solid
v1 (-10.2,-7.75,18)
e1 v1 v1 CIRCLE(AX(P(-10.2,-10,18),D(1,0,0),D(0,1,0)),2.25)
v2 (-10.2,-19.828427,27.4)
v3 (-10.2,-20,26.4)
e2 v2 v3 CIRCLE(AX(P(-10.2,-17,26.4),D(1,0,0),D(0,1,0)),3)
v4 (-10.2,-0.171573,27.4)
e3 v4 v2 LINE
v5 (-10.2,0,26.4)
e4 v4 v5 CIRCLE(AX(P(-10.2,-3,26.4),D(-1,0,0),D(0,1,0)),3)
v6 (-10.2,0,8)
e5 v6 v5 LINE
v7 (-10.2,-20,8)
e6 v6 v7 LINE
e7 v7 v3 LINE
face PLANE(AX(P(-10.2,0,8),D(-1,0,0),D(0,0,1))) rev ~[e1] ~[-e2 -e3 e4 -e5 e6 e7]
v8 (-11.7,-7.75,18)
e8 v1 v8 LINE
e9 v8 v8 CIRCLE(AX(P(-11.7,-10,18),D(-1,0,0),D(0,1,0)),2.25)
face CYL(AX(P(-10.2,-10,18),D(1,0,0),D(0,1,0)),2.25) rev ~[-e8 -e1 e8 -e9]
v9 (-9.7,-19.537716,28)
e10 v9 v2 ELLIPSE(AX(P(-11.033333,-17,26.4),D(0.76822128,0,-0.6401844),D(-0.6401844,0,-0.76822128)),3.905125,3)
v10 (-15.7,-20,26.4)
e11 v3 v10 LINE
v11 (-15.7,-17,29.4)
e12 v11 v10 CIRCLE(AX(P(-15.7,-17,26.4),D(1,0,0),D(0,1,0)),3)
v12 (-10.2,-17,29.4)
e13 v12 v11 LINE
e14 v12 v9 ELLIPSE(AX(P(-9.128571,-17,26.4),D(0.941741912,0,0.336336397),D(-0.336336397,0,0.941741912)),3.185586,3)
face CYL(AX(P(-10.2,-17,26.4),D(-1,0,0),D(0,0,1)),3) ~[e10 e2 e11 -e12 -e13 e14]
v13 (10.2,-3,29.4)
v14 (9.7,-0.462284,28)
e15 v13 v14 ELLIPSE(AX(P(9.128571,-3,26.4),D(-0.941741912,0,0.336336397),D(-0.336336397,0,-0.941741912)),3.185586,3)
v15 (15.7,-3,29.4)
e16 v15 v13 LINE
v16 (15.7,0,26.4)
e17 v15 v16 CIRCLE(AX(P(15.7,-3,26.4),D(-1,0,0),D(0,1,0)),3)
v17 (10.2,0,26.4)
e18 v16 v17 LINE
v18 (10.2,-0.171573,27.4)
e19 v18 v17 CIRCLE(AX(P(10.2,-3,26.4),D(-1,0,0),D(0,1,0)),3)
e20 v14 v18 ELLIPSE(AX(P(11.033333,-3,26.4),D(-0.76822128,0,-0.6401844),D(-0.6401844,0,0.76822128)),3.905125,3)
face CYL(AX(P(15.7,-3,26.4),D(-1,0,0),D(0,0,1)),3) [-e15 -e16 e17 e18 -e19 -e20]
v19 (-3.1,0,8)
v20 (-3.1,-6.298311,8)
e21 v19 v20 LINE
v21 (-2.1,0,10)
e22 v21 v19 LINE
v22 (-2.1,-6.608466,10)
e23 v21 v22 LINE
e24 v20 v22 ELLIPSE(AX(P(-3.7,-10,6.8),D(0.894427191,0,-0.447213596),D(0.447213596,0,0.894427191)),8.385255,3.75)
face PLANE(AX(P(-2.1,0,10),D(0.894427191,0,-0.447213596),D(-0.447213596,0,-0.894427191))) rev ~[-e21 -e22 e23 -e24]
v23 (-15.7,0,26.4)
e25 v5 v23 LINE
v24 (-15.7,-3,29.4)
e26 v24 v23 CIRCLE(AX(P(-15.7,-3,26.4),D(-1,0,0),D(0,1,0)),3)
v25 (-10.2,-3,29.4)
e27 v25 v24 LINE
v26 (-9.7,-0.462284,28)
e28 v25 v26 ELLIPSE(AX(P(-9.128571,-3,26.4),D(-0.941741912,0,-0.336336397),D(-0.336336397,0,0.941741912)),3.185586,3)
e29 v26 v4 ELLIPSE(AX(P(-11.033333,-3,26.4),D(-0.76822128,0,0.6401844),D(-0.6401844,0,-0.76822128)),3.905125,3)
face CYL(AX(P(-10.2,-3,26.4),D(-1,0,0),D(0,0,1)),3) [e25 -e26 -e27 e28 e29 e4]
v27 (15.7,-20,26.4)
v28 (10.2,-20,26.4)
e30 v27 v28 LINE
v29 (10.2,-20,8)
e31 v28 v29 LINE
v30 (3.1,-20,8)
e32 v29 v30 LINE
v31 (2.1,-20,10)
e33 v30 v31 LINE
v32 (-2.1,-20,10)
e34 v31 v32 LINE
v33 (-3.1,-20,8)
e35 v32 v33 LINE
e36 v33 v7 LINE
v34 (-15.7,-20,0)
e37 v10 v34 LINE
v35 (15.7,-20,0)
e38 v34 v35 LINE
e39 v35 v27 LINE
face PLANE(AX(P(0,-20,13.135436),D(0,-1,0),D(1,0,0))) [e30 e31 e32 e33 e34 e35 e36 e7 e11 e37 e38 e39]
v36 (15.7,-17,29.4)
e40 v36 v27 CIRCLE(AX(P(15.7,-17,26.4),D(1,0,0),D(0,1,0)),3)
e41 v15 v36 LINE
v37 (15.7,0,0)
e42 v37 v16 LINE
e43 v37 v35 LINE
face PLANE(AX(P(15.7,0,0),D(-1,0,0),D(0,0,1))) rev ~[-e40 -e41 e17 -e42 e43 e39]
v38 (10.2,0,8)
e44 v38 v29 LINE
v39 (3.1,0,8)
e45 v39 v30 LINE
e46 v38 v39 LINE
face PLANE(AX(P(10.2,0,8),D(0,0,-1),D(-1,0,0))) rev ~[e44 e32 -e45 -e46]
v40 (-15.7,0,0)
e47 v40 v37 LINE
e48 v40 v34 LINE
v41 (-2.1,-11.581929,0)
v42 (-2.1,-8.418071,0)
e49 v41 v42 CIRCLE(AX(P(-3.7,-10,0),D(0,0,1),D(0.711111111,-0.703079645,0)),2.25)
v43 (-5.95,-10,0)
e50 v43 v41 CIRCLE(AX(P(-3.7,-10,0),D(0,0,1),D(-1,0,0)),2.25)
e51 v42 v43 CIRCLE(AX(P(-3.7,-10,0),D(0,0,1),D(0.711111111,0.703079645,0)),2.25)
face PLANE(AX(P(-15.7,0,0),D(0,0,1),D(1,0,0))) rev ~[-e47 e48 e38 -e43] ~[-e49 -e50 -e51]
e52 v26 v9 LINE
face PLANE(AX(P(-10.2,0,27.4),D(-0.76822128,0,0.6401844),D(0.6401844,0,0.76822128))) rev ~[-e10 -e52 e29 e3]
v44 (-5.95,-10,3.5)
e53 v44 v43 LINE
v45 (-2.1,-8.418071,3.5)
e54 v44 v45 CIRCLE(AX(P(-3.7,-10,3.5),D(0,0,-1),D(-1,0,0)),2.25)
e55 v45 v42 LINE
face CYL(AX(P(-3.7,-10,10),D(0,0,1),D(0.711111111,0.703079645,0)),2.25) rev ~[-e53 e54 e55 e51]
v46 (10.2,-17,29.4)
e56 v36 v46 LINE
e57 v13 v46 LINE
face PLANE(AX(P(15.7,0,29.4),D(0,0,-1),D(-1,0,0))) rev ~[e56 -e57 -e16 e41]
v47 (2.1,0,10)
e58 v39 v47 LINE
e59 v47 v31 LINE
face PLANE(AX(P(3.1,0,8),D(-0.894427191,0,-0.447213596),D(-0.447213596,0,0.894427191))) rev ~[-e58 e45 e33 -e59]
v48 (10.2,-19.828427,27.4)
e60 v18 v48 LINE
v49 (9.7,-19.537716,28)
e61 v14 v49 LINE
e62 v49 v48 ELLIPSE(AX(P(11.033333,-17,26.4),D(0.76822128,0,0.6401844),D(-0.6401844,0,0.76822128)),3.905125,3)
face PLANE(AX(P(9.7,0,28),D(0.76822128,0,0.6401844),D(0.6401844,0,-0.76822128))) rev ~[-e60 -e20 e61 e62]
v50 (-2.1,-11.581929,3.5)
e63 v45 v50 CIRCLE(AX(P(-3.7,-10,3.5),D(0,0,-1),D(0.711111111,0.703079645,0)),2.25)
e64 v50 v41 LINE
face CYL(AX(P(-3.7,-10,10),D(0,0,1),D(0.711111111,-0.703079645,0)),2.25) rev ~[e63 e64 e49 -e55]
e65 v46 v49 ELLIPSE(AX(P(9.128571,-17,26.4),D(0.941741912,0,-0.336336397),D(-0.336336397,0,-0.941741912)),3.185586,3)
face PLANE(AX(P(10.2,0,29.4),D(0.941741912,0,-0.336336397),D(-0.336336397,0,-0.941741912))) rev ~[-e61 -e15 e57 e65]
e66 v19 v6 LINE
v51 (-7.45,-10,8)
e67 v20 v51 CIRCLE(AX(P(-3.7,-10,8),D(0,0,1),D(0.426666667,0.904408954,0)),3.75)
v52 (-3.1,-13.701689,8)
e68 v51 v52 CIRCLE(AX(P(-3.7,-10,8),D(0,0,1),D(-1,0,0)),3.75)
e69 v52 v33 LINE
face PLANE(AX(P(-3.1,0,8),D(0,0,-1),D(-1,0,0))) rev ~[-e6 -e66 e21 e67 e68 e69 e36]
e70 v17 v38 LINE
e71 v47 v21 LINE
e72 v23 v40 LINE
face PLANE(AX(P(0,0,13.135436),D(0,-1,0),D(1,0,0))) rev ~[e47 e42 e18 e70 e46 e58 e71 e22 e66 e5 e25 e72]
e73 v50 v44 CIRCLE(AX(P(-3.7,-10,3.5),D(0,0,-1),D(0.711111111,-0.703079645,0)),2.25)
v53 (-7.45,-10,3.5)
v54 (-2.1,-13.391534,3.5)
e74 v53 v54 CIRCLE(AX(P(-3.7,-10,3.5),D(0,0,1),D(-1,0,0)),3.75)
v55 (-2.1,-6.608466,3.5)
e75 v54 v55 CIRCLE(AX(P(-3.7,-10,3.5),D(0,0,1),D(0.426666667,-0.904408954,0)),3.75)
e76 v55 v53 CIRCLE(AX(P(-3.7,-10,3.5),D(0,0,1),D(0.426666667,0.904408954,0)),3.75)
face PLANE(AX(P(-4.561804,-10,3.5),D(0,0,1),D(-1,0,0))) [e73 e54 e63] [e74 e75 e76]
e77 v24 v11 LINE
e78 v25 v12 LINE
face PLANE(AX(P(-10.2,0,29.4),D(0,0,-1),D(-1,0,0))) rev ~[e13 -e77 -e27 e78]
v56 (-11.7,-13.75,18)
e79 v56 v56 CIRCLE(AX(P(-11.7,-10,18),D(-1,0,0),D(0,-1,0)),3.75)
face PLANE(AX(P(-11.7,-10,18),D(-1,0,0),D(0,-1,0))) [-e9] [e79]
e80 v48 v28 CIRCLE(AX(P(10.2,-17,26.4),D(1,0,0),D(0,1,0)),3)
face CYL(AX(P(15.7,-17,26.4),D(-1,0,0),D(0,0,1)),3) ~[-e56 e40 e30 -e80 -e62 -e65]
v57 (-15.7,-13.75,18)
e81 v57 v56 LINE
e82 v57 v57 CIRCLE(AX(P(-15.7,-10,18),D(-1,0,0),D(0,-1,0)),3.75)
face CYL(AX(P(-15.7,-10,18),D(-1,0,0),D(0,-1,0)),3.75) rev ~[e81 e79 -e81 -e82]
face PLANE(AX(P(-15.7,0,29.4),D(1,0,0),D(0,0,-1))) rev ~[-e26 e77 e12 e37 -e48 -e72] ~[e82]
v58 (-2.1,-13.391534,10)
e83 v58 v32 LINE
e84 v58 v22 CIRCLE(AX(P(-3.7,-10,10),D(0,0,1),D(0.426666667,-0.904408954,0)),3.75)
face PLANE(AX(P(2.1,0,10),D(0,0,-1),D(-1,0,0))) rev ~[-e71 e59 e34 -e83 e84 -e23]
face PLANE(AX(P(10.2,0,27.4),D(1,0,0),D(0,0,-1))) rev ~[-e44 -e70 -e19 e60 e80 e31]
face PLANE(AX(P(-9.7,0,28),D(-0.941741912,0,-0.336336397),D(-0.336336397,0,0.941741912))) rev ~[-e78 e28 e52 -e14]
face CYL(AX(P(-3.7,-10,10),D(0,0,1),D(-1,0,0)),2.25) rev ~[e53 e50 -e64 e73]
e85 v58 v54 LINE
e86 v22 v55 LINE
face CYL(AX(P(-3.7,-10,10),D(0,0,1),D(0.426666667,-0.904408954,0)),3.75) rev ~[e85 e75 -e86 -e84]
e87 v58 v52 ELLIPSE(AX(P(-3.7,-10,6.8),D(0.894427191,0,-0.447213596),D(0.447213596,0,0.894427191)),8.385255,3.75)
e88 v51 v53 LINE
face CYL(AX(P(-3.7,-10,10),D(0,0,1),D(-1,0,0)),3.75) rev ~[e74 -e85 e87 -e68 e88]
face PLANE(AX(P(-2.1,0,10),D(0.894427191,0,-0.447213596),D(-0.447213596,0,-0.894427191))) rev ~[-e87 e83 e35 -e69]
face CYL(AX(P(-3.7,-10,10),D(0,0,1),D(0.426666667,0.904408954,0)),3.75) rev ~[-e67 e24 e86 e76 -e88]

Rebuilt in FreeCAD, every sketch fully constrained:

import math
import FreeCAD as App
import Part
import Sketcher
from FreeCAD import Vector
Q = App.Units.Quantity


def edges_at(feature, points):
    """Names of the edges that pass closest to the given points."""
    edges = feature.Shape.Edges
    near = lambda p: min(range(len(edges)), key=lambda i: edges[i].distToShape(Part.Vertex(*p))[0])
    return sorted({f"Edge{near(p) + 1}" for p in points})

doc = App.newDocument("Part")
body = doc.addObject("PartDesign::Body", "Body")

# Sketch on XY plane
sketch1 = doc.addObject("Sketcher::SketchObject", "Sketch")
body.addObject(sketch1)
sketch1.AttachmentSupport = (doc.XY_Plane, [""])
sketch1.MapMode = "FlatFace"
sketch1.addGeometry([
    Part.LineSegment(Vector(-15.7, 0, 0), Vector(15.7, 0, 0)),  # 0
    Part.LineSegment(Vector(15.7, 0, 0), Vector(15.7, 29.4, 0)),  # 1
    Part.LineSegment(Vector(15.7, 29.4, 0), Vector(10.2, 29.4, 0)),  # 2
    Part.LineSegment(Vector(10.2, 29.4, 0), Vector(9.7, 28, 0)),  # 3
    Part.LineSegment(Vector(9.7, 28, 0), Vector(10.2, 27.4, 0)),  # 4
    Part.LineSegment(Vector(10.2, 27.4, 0), Vector(10.2, 8, 0)),  # 5
    Part.LineSegment(Vector(10.2, 8, 0), Vector(3.1, 8, 0)),  # 6
    Part.LineSegment(Vector(3.1, 8, 0), Vector(2.1, 10, 0)),  # 7
    Part.LineSegment(Vector(2.1, 10, 0), Vector(-2.1, 10, 0)),  # 8
    Part.LineSegment(Vector(-2.1, 10, 0), Vector(-3.1, 8, 0)),  # 9
    Part.LineSegment(Vector(-3.1, 8, 0), Vector(-10.2, 8, 0)),  # 10
    Part.LineSegment(Vector(-10.2, 8, 0), Vector(-10.2, 27.4, 0)),  # 11
    Part.LineSegment(Vector(-10.2, 27.4, 0), Vector(-9.7, 28, 0)),  # 12
    Part.LineSegment(Vector(-9.7, 28, 0), Vector(-10.2, 29.4, 0)),  # 13
    Part.LineSegment(Vector(-10.2, 29.4, 0), Vector(-15.7, 29.4, 0)),  # 14
    Part.LineSegment(Vector(-15.7, 29.4, 0), Vector(-15.7, 0, 0)),  # 15
], False)
sketch1.addConstraint([
    Sketcher.Constraint("Coincident", 0, 2, 1, 1),
    Sketcher.Constraint("Coincident", 1, 2, 2, 1),
    Sketcher.Constraint("Coincident", 2, 2, 3, 1),
    Sketcher.Constraint("Coincident", 3, 2, 4, 1),
    Sketcher.Constraint("Coincident", 4, 2, 5, 1),
    Sketcher.Constraint("Coincident", 5, 2, 6, 1),
    Sketcher.Constraint("Coincident", 6, 2, 7, 1),
    Sketcher.Constraint("Coincident", 7, 2, 8, 1),
    Sketcher.Constraint("Coincident", 8, 2, 9, 1),
    Sketcher.Constraint("Coincident", 9, 2, 10, 1),
    Sketcher.Constraint("Coincident", 10, 2, 11, 1),
    Sketcher.Constraint("Coincident", 11, 2, 12, 1),
    Sketcher.Constraint("Coincident", 12, 2, 13, 1),
    Sketcher.Constraint("Coincident", 13, 2, 14, 1),
    Sketcher.Constraint("Coincident", 14, 2, 15, 1),
    Sketcher.Constraint("Coincident", 15, 2, 0, 1),
    Sketcher.Constraint("Horizontal", 0),
    Sketcher.Constraint("Vertical", 1),
    Sketcher.Constraint("Horizontal", 2),
    Sketcher.Constraint("Vertical", 5),
    Sketcher.Constraint("Horizontal", 6),
    Sketcher.Constraint("Horizontal", 8),
    Sketcher.Constraint("Horizontal", 10),
    Sketcher.Constraint("Vertical", 11),
    Sketcher.Constraint("Horizontal", 14),
    Sketcher.Constraint("Vertical", 15),
    Sketcher.Constraint("Symmetric", 0, 2, 15, 2, -1, 1),
    Sketcher.Constraint("Symmetric", 6, 2, 9, 2, -2),
    Sketcher.Constraint("Symmetric", 4, 2, 11, 2, -2),
    Sketcher.Constraint("Symmetric", 3, 2, 12, 2, -2),
    Sketcher.Constraint("Symmetric", 2, 2, 13, 2, -2),
    Sketcher.Constraint("Vertical", 2, 2, 4, 2),
    Sketcher.Constraint("Equal", 7, 9),
    Sketcher.Constraint("DistanceX", 0, 1, 0, 2, Q("31.4 mm")),
    Sketcher.Constraint("DistanceX", 2, 2, 2, 1, Q("5.5 mm")),
    Sketcher.Constraint("DistanceX", 6, 2, 6, 1, Q("7.1 mm")),
    Sketcher.Constraint("DistanceX", 8, 2, 8, 1, Q("4.2 mm")),
    Sketcher.Constraint("DistanceY", 1, 1, 1, 2, Q("29.4 mm")),
    Sketcher.Constraint("DistanceY", 5, 2, 5, 1, Q("19.4 mm")),
    Sketcher.Constraint("DistanceY", -1, 1, 3, 2, Q("28 mm")),
    Sketcher.Constraint("DistanceY", -1, 1, 5, 2, Q("8 mm")),
    Sketcher.Constraint("DistanceY", -1, 1, 7, 2, Q("10 mm")),
    Sketcher.Constraint("DistanceX", 3, 2, 1, 2, Q("6 mm")),
])
pad1 = doc.addObject("PartDesign::Pad", "Pad")
body.addObject(pad1)
pad1.Profile = sketch1
pad1.Length = 20
doc.recompute()

fillet = doc.addObject("PartDesign::Fillet", "Fillet")
body.addObject(fillet)
fillet.Base = (pad1, edges_at(pad1, [
    (12.95, 29.4, 20),
    (-12.95, 29.4, 20),
    (-12.95, 29.4, 0),
    (12.95, 29.4, 0),
]))
fillet.Radius = 3

# Sketch on XZ plane
sketch2 = doc.addObject("Sketcher::SketchObject", "Sketch001")
body.addObject(sketch2)
sketch2.AttachmentSupport = (doc.XZ_Plane, [""])
sketch2.MapMode = "FlatFace"
sketch2.AttachmentOffset = App.Placement(Vector(0, 0, -10), App.Rotation())
sketch2.addGeometry([
    Part.ArcOfCircle(Part.Circle(Vector(-3.7, 10, 0), Vector(0, 0, 1), 2.2), math.radians(45), math.radians(180)),
    Part.ArcOfCircle(Part.Circle(Vector(-3.7, 10, 0), Vector(0, 0, 1), 2.2), math.radians(-45), math.radians(45)),
    Part.ArcOfCircle(Part.Circle(Vector(-3.7, 10, 0), Vector(0, 0, 1), 2.2), math.radians(180), math.radians(315)),
], False)
sketch2.addConstraint([
    Sketcher.Constraint("Tangent", 0, 1, 1, 2),
    Sketcher.Constraint("Tangent", 1, 1, 2, 2),
    Sketcher.Constraint("Tangent", 2, 1, 0, 2),
    Sketcher.Constraint("Horizontal", 1, 3, 2, 1),
    Sketcher.Constraint("Vertical", 0, 1, 1, 1),
    Sketcher.Constraint("Radius", 0, Q("2.25 mm")),
    Sketcher.Constraint("DistanceY", -1, 1, 0, 3, Q("10 mm")),
    Sketcher.Constraint("DistanceX", 0, 3, -1, 1, Q("3.7 mm")),
    Sketcher.Constraint("DistanceX", 0, 1, -1, 1, Q("2.1 mm")),
])
pocket1 = doc.addObject("PartDesign::Pocket", "Pocket")
body.addObject(pocket1)
pocket1.Profile = sketch2
pocket1.Type = "ThroughAll"
pocket1.Reversed = True

# Sketch on XZ plane
sketch3 = doc.addObject("Sketcher::SketchObject", "Sketch002")
body.addObject(sketch3)
sketch3.AttachmentSupport = (doc.XZ_Plane, [""])
sketch3.MapMode = "FlatFace"
sketch3.AttachmentOffset = App.Placement(Vector(0, 0, -10), App.Rotation())
sketch3.addGeometry([
    Part.ArcOfCircle(Part.Circle(Vector(-3.7, 10, 0), Vector(0, 0, 1), 3.8), math.radians(180), math.radians(295)),  # 0
    Part.ArcOfCircle(Part.Circle(Vector(-3.7, 10, 0), Vector(0, 0, 1), 3.8), math.radians(65), math.radians(180)),  # 1
    Part.ArcOfCircle(Part.Circle(Vector(-3.7, 10, 0), Vector(0, 0, 1), 3.8), math.radians(-65), math.radians(65)),  # 2
    Part.ArcOfCircle(Part.Circle(Vector(-3.7, 10, 0), Vector(0, 0, 1), 2.2), math.radians(45), math.radians(180)),  # 3
    Part.ArcOfCircle(Part.Circle(Vector(-3.7, 10, 0), Vector(0, 0, 1), 2.2), math.radians(180), math.radians(315)),  # 4
    Part.ArcOfCircle(Part.Circle(Vector(-3.7, 10, 0), Vector(0, 0, 1), 2.2), math.radians(-45), math.radians(45)),  # 5
], False)
sketch3.addConstraint([
    Sketcher.Constraint("Tangent", 0, 1, 1, 2),
    Sketcher.Constraint("Tangent", 1, 1, 2, 2),
    Sketcher.Constraint("Tangent", 2, 1, 0, 2),
    Sketcher.Constraint("Tangent", 3, 2, 4, 1),
    Sketcher.Constraint("Tangent", 4, 2, 5, 1),
    Sketcher.Constraint("Tangent", 5, 2, 3, 1),
    Sketcher.Constraint("Coincident", 3, 3, 0, 3),
    Sketcher.Constraint("Horizontal", 5, 3, 0, 1),
    Sketcher.Constraint("Horizontal", 0, 1, 3, 2),
    Sketcher.Constraint("Vertical", 1, 1, 2, 1),
    Sketcher.Constraint("Vertical", 2, 1, 4, 2),
    Sketcher.Constraint("Vertical", 4, 2, 5, 2),
    Sketcher.Constraint("Radius", 0, Q("3.75 mm")),
    Sketcher.Constraint("Radius", 3, Q("2.25 mm")),
    Sketcher.Constraint("DistanceY", -1, 1, 0, 3, Q("10 mm")),
    Sketcher.Constraint("DistanceX", 0, 3, -1, 1, Q("3.7 mm")),
    Sketcher.Constraint("DistanceX", 1, 1, -1, 1, Q("2.1 mm")),
])
pocket2 = doc.addObject("PartDesign::Pocket", "Pocket001")
body.addObject(pocket2)
pocket2.Profile = sketch3
pocket2.Length = 6.5
pocket2.Reversed = True
body2 = doc.addObject("PartDesign::Body", "Body001")
doc.recompute()

body.Placement = App.Placement(Vector(0, 0, 0), App.Rotation(Vector(-1, 0, 0), 270))
boolean = doc.addObject("PartDesign::Boolean", "Boolean")
body2.addObject(boolean)
boolean.Type = "Fuse"
boolean.addObjects([body])

# Sketch on YZ plane
sketch4 = doc.addObject("Sketcher::SketchObject", "Sketch003")
body2.addObject(sketch4)
sketch4.AttachmentSupport = (doc.getObject("YZ_Plane001"), [""])
sketch4.MapMode = "FlatFace"
sketch4.AttachmentOffset = App.Placement(Vector(0, 0, -10.2), App.Rotation())
sketch4.addGeometry(Part.Circle(Vector(-10, 18, 0), Vector(0, 0, 1), 2.2), False)
sketch4.addConstraint([
    Sketcher.Constraint("Diameter", 0, Q("4.5 mm")),
    Sketcher.Constraint("DistanceX", 0, 3, -1, 1, Q("10 mm")),
    Sketcher.Constraint("DistanceY", -1, 1, 0, 3, Q("18 mm")),
])
pocket3 = doc.addObject("PartDesign::Pocket", "Pocket002")
body2.addObject(pocket3)
pocket3.Profile = sketch4
pocket3.Type = "ThroughAll"

# Sketch on YZ plane
sketch5 = doc.addObject("Sketcher::SketchObject", "Sketch004")
body2.addObject(sketch5)
sketch5.AttachmentSupport = (doc.getObject("YZ_Plane001"), [""])
sketch5.MapMode = "FlatFace"
sketch5.AttachmentOffset = App.Placement(Vector(0, 0, -15.7), App.Rotation())
sketch5.addGeometry([
    Part.Circle(Vector(-10, 18, 0), Vector(0, 0, 1), 3.8),
    Part.Circle(Vector(-10, 18, 0), Vector(0, 0, 1), 2.2),
], False)
sketch5.addConstraint([
    Sketcher.Constraint("Coincident", 1, 3, 0, 3),
    Sketcher.Constraint("Diameter", 0, Q("7.5 mm")),
    Sketcher.Constraint("Diameter", 1, Q("4.5 mm")),
    Sketcher.Constraint("DistanceX", 0, 3, -1, 1, Q("10 mm")),
    Sketcher.Constraint("DistanceY", -1, 1, 0, 3, Q("18 mm")),
])
pocket4 = doc.addObject("PartDesign::Pocket", "Pocket003")
body2.addObject(pocket4)
pocket4.Profile = sketch5
pocket4.Length = 4
pocket4.Reversed = True

doc.recompute()
